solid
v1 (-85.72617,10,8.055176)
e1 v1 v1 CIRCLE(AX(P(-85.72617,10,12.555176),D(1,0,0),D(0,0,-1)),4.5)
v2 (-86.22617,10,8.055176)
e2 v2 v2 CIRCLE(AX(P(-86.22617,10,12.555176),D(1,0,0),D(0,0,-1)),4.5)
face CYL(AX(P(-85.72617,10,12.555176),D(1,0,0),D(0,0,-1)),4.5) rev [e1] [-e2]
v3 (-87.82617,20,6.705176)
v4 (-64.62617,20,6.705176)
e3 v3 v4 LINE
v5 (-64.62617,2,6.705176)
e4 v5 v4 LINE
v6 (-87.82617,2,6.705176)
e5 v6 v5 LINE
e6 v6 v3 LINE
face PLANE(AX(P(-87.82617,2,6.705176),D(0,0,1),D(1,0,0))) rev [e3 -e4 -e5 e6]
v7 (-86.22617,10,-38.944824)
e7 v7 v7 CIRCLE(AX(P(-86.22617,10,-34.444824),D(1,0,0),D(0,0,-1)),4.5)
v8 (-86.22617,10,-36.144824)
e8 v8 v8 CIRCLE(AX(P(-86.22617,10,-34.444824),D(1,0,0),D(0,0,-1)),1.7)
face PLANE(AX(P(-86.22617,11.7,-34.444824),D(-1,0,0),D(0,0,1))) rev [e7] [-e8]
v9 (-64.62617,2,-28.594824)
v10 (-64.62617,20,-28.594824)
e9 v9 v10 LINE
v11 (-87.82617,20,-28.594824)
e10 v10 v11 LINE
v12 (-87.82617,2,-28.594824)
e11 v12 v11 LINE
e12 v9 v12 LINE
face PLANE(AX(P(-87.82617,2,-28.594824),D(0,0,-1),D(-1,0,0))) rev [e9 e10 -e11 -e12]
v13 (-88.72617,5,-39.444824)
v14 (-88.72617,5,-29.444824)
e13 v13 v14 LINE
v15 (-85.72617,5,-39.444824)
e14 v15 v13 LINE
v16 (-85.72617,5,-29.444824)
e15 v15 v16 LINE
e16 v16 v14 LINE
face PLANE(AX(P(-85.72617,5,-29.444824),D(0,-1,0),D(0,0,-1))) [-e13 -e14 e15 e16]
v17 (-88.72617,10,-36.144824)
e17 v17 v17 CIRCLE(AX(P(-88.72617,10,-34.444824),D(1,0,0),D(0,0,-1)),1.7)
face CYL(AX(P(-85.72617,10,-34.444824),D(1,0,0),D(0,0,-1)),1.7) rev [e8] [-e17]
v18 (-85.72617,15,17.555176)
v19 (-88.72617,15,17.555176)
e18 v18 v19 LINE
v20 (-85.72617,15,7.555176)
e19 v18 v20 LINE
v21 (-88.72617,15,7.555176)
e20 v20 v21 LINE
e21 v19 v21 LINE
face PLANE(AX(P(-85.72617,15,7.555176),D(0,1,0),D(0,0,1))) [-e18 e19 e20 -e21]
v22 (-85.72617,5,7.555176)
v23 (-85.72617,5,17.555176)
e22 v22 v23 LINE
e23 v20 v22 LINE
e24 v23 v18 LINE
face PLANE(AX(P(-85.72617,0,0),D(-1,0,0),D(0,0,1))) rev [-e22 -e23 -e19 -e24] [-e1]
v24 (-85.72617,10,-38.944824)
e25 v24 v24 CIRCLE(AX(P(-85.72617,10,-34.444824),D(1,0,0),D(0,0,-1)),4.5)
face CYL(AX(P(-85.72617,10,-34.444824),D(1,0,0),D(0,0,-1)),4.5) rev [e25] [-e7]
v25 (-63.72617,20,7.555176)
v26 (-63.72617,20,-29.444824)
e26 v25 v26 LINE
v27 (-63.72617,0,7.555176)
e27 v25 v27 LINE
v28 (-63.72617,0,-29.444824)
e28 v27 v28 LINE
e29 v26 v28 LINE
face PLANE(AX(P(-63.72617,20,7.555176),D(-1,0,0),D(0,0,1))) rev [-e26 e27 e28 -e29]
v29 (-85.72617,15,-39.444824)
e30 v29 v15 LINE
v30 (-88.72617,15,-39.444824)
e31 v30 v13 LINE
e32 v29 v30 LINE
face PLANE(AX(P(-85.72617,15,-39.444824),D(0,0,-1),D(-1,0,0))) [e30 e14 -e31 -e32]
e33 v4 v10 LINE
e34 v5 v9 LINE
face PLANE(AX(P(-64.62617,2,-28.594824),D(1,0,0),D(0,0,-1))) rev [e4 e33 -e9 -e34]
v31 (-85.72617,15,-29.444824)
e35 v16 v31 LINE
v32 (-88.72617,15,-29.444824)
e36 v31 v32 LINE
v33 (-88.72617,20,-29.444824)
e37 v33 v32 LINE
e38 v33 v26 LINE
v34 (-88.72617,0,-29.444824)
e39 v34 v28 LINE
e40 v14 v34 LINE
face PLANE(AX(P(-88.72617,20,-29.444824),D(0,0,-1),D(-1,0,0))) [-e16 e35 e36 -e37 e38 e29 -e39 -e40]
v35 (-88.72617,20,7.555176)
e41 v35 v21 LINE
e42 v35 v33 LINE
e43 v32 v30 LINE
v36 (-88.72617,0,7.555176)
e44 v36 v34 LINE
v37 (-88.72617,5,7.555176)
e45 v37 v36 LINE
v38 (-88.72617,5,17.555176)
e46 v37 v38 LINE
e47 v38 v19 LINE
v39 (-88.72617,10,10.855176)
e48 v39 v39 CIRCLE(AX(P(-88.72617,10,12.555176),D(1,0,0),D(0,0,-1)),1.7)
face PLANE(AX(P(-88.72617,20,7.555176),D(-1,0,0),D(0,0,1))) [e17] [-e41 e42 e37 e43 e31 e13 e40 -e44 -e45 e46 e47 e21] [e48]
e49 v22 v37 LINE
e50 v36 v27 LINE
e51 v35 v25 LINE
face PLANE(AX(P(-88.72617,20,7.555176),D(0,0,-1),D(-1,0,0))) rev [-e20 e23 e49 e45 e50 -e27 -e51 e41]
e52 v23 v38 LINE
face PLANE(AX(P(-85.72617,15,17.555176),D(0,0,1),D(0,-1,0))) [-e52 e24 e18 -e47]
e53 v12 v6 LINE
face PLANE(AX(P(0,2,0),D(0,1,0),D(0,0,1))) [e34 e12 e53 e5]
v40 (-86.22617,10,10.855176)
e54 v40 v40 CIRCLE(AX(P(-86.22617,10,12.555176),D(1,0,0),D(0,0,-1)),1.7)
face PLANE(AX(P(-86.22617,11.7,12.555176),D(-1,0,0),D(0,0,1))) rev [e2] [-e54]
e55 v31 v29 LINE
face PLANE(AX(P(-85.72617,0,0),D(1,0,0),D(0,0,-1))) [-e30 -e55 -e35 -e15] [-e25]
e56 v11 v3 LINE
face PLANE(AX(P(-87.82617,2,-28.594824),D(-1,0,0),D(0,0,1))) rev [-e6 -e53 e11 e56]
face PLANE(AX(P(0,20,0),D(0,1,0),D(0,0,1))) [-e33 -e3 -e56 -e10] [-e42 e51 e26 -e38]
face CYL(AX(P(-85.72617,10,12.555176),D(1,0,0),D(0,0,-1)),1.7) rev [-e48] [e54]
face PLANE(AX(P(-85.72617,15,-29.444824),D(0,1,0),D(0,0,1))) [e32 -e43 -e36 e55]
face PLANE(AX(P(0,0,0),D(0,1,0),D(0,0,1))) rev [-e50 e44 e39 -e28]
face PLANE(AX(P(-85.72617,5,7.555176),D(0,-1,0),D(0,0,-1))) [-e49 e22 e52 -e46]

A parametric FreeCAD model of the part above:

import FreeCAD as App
import Part
import Sketcher
from FreeCAD import Vector
Q = App.Units.Quantity

doc = App.newDocument("Part")
body = doc.addObject("PartDesign::Body", "Body")

sketch1 = doc.addObject("Sketcher::SketchObject", "Sketch")
body.addObject(sketch1)
sketch1.AttachmentSupport = (doc.XZ_Plane, [""])
sketch1.MapMode = "FlatFace"
sketch1.addGeometry([
    Part.LineSegment(Vector(-89, -29, 0), Vector(-89, 8, 0)),
    Part.LineSegment(Vector(-89, 8, 0), Vector(-64, 8, 0)),
    Part.LineSegment(Vector(-64, 8, 0), Vector(-64, -29, 0)),
    Part.LineSegment(Vector(-64, -29, 0), Vector(-89, -29, 0)),
], False)
sketch1.addConstraint([
    Sketcher.Constraint("Coincident", 0, 2, 1, 1),
    Sketcher.Constraint("Coincident", 1, 2, 2, 1),
    Sketcher.Constraint("Coincident", 2, 2, 3, 1),
    Sketcher.Constraint("Coincident", 3, 2, 0, 1),
    Sketcher.Constraint("Vertical", 0),
    Sketcher.Constraint("Horizontal", 1),
    Sketcher.Constraint("Vertical", 2),
    Sketcher.Constraint("Horizontal", 3),
    Sketcher.Constraint("DistanceX", 1, 1, 1, 2, Q("25 mm")),
    Sketcher.Constraint("DistanceY", 0, 1, 0, 2, Q("37 mm")),
    Sketcher.Constraint("DistanceX", 0, 2, -1, 1, Q("88.72617 mm")),
    Sketcher.Constraint("DistanceY", -1, 1, 0, 2, Q("7.555176 mm")),
])
pad1 = doc.addObject("PartDesign::Pad", "Pad")
body.addObject(pad1)
pad1.Profile = sketch1
pad1.Length = 20
pad1.Reversed = True

sketch2 = doc.addObject("Sketcher::SketchObject", "Sketch001")
body.addObject(sketch2)
sketch2.AttachmentSupport = (doc.XZ_Plane, [""])
sketch2.MapMode = "FlatFace"
sketch2.AttachmentOffset = App.Placement(Vector(0, 0, -20), App.Rotation())
sketch2.addGeometry([
    Part.LineSegment(Vector(-88, -29, 0), Vector(-88, 7, 0)),
    Part.LineSegment(Vector(-88, 7, 0), Vector(-65, 7, 0)),
    Part.LineSegment(Vector(-65, 7, 0), Vector(-65, -29, 0)),
    Part.LineSegment(Vector(-65, -29, 0), Vector(-88, -29, 0)),
], False)
sketch2.addConstraint([
    Sketcher.Constraint("Coincident", 0, 2, 1, 1),
    Sketcher.Constraint("Coincident", 1, 2, 2, 1),
    Sketcher.Constraint("Coincident", 2, 2, 3, 1),
    Sketcher.Constraint("Coincident", 3, 2, 0, 1),
    Sketcher.Constraint("Vertical", 0),
    Sketcher.Constraint("Horizontal", 1),
    Sketcher.Constraint("Vertical", 2),
    Sketcher.Constraint("Horizontal", 3),
    Sketcher.Constraint("DistanceX", 1, 1, 1, 2, Q("23.2 mm")),
    Sketcher.Constraint("DistanceY", 0, 1, 0, 2, Q("35.3 mm")),
    Sketcher.Constraint("DistanceX", 0, 2, -1, 1, Q("87.82617 mm")),
    Sketcher.Constraint("DistanceY", -1, 1, 0, 2, Q("6.705176 mm")),
])
pocket1 = doc.addObject("PartDesign::Pocket", "Pocket")
body.addObject(pocket1)
pocket1.Profile = sketch2
pocket1.Length = 18
pocket1.Reversed = True

sketch3 = doc.addObject("Sketcher::SketchObject", "Sketch002")
body.addObject(sketch3)
sketch3.AttachmentSupport = (doc.YZ_Plane, [""])
sketch3.MapMode = "FlatFace"
sketch3.AttachmentOffset = App.Placement(Vector(0, 0, -88.72617), App.Rotation())
sketch3.addGeometry([
    Part.LineSegment(Vector(15, -39, 0), Vector(5, -39, 0)),
    Part.LineSegment(Vector(5, -39, 0), Vector(5, -29, 0)),
    Part.LineSegment(Vector(5, -29, 0), Vector(15, -29, 0)),
    Part.LineSegment(Vector(15, -29, 0), Vector(15, -39, 0)),
    Part.LineSegment(Vector(15, 8, 0), Vector(5, 8, 0)),
    Part.LineSegment(Vector(5, 8, 0), Vector(5, 18, 0)),
    Part.LineSegment(Vector(5, 18, 0), Vector(15, 18, 0)),
    Part.LineSegment(Vector(15, 18, 0), Vector(15, 8, 0)),
], False)
sketch3.addConstraint([
    Sketcher.Constraint("Coincident", 0, 2, 1, 1),
    Sketcher.Constraint("Coincident", 1, 2, 2, 1),
    Sketcher.Constraint("Coincident", 2, 2, 3, 1),
    Sketcher.Constraint("Coincident", 3, 2, 0, 1),
    Sketcher.Constraint("Coincident", 4, 2, 5, 1),
    Sketcher.Constraint("Coincident", 5, 2, 6, 1),
    Sketcher.Constraint("Coincident", 6, 2, 7, 1),
    Sketcher.Constraint("Coincident", 7, 2, 4, 1),
    Sketcher.Constraint("Horizontal", 0),
    Sketcher.Constraint("Vertical", 1),
    Sketcher.Constraint("Horizontal", 2),
    Sketcher.Constraint("Vertical", 3),
    Sketcher.Constraint("Horizontal", 4),
    Sketcher.Constraint("Vertical", 5),
    Sketcher.Constraint("Horizontal", 6),
    Sketcher.Constraint("Vertical", 7),
    Sketcher.Constraint("Vertical", 1, 2, 4, 2),
    Sketcher.Constraint("Vertical", 3, 2, 6, 2),
    Sketcher.Constraint("Equal", 6, 1),
    Sketcher.Constraint("Equal", 3, 5),
    Sketcher.Constraint("DistanceX", 0, 2, 0, 1, Q("10 mm")),
    Sketcher.Constraint("DistanceX", -1, 1, 0, 2, Q("5 mm")),
    Sketcher.Constraint("DistanceY", 1, 2, 4, 2, Q("37 mm")),
    Sketcher.Constraint("DistanceY", 0, 2, -1, 1, Q("39.444824 mm")),
])
pad2 = doc.addObject("PartDesign::Pad", "Pad001")
body.addObject(pad2)
pad2.Profile = sketch3
pad2.Length = 3

sketch4 = doc.addObject("Sketcher::SketchObject", "Sketch003")
body.addObject(sketch4)
sketch4.AttachmentSupport = (doc.YZ_Plane, [""])
sketch4.MapMode = "FlatFace"
sketch4.AttachmentOffset = App.Placement(Vector(0, 0, -85.72617), App.Rotation())
sketch4.addGeometry([
    Part.Circle(Vector(10, -34.4, 0), Vector(0, 0, 1), 1.7),
    Part.Circle(Vector(10, 12.6, 0), Vector(0, 0, 1), 1.7),
], False)
sketch4.addConstraint([
    Sketcher.Constraint("Equal", 0, 1),
    Sketcher.Constraint("Vertical", 0, 3, 1, 3),
    Sketcher.Constraint("Diameter", 0, Q("3.4 mm")),
    Sketcher.Constraint("DistanceX", -1, 1, 0, 3, Q("10 mm")),
    Sketcher.Constraint("DistanceY", 0, 3, 1, 3, Q("47 mm")),
    Sketcher.Constraint("DistanceY", 0, 3, -1, 1, Q("34.444824 mm")),
])
doc.recompute()
hole = doc.addObject("PartDesign::Hole", "Hole")
body.addObject(hole)
hole.Profile = sketch4
hole.ThreadType = "None"
hole.Diameter = 3.4
hole.DepthType = "ThroughAll"
hole.HoleCutType = "Counterbore"
hole.HoleCutDiameter = 9
hole.HoleCutDepth = 0.5

doc.recompute()
